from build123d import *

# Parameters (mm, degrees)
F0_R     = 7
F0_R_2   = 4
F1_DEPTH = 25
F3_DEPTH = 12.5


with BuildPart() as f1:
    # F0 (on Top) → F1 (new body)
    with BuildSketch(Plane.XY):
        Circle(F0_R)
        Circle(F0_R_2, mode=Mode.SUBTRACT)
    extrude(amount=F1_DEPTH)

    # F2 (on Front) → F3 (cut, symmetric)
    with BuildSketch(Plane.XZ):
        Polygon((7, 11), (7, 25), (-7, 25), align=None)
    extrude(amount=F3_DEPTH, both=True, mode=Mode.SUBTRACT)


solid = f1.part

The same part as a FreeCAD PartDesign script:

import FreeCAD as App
import Part
import Sketcher

V = App.Vector
Q = App.Units.Quantity

doc = App.newDocument("Part")
body = doc.addObject("PartDesign::Body", "Body")

# Sketch on XY plane
sketch1 = doc.addObject("Sketcher::SketchObject", "Sketch")
body.addObject(sketch1)
sketch1.AttachmentSupport = (doc.XY_Plane, [""])
sketch1.MapMode = "FlatFace"
sketch1.addGeometry([
    Part.Circle(V(0, 0, 0), V(0, 0, 1), 7),
    Part.Circle(V(0, 0, 0), V(0, 0, 1), 4),
], False)
sketch1.addConstraint([
    Sketcher.Constraint("Coincident", 0, 3, -1, 1),
    Sketcher.Constraint("Coincident", 1, 3, -1, 1),
    Sketcher.Constraint("Diameter", 0, Q("14 mm")),
    Sketcher.Constraint("Diameter", 1, Q("8 mm")),
])
pad1 = doc.addObject("PartDesign::Pad", "Pad")
body.addObject(pad1)
pad1.Profile = sketch1
pad1.Length = 25

# Sketch on XZ plane
sketch2 = doc.addObject("Sketcher::SketchObject", "Sketch001")
body.addObject(sketch2)
sketch2.AttachmentSupport = (doc.XZ_Plane, [""])
sketch2.MapMode = "FlatFace"
sketch2.addGeometry([
    Part.LineSegment(V(7, 11, 0), V(7, 25, 0)),
    Part.LineSegment(V(7, 25, 0), V(-7, 25, 0)),
    Part.LineSegment(V(-7, 25, 0), V(7, 11, 0)),
], False)
sketch2.addConstraint([
    Sketcher.Constraint("Coincident", 0, 2, 1, 1),
    Sketcher.Constraint("Coincident", 1, 2, 2, 1),
    Sketcher.Constraint("Coincident", 2, 2, 0, 1),
    Sketcher.Constraint("Vertical", 0),
    Sketcher.Constraint("Horizontal", 1),
    Sketcher.Constraint("Equal", 1, 0),
    Sketcher.Constraint("DistanceX", 1, 2, 1, 1, Q("14 mm")),
    Sketcher.Constraint("DistanceX", -1, 1, 0, 2, Q("7 mm")),
    Sketcher.Constraint("DistanceY", -1, 1, 0, 2, Q("25 mm")),
])
pocket1 = doc.addObject("PartDesign::Pocket", "Pocket")
body.addObject(pocket1)
pocket1.Profile = sketch2
pocket1.Length = 25
pocket1.Midplane = True

doc.recompute()
